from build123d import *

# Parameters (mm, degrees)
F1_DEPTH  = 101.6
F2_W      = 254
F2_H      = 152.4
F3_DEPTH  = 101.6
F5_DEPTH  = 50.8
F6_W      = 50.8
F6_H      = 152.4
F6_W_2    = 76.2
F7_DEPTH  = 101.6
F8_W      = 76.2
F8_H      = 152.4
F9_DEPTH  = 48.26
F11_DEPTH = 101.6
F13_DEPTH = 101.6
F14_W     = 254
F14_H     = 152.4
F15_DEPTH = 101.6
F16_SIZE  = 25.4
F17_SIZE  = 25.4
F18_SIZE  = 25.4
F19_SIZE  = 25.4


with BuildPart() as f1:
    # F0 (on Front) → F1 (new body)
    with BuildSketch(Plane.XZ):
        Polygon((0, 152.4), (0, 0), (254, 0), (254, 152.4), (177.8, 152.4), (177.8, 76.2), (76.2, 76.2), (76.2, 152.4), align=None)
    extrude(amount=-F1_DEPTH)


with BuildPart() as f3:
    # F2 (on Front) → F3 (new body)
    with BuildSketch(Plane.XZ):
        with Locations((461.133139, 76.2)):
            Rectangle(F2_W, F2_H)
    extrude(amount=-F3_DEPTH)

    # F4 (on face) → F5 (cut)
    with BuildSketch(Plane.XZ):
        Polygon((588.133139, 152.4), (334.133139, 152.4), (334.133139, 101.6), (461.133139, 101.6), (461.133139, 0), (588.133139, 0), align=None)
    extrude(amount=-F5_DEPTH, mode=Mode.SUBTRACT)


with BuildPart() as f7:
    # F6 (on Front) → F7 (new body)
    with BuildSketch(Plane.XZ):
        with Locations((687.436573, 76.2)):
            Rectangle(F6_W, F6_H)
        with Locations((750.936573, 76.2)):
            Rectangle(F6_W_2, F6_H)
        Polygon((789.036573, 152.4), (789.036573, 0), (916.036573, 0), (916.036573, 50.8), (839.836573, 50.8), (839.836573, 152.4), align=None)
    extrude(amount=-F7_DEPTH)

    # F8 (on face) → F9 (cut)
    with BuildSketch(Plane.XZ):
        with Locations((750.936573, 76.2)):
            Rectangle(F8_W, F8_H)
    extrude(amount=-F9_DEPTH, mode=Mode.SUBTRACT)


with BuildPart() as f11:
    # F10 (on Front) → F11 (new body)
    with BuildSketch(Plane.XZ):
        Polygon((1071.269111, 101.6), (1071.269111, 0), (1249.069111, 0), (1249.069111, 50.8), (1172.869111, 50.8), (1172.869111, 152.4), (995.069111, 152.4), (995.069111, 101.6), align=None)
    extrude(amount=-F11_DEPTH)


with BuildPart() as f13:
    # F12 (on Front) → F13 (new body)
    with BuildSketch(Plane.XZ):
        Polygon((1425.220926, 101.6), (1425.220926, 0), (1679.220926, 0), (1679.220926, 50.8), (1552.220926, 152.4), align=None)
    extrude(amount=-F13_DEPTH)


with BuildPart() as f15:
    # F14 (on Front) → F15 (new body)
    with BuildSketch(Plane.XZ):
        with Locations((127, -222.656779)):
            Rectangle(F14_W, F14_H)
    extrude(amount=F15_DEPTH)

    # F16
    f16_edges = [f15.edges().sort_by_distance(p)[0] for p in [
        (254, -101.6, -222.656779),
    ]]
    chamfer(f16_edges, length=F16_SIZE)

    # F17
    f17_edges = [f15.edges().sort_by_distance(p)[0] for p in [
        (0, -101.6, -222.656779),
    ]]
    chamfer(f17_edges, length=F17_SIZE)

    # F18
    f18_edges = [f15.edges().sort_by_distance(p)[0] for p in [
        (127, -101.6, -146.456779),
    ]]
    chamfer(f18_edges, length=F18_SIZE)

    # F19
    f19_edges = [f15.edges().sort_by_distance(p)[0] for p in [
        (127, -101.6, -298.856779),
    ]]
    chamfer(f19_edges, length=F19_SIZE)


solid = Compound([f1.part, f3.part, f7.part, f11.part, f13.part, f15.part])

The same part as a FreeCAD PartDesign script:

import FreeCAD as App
import Part
import Sketcher
Q = App.Units.Quantity


def edges_at(feature, points):
    """Names of the edges that pass closest to the given points."""
    edges = feature.Shape.Edges
    near = lambda p: min(range(len(edges)), key=lambda i: edges[i].distToShape(Part.Vertex(*p))[0])
    return sorted({f"Edge{near(p) + 1}" for p in points})


def add_polygon(sketch, points):
    """Adds a closed chain of lines whose ends are joined by coincident constraints."""
    first, n = sketch.GeometryCount, len(points)
    for a, b in zip(points, points[1:] + points[:1]):
        sketch.addGeometry(Part.LineSegment(App.Vector(*a, 0), App.Vector(*b, 0)), False)
    for i in range(n):
        sketch.addConstraint(Sketcher.Constraint("Coincident", first + i, 2, first + (i + 1) % n, 1))

doc = App.newDocument("Part")
params = doc.addObject("Spreadsheet::Sheet", "Params")
for row, (alias, value) in enumerate([
    ("sketch1_width", "10 in"),
    ("sketch1_width2", "3 in"),
    ("sketch1_height", "6 in"),
    ("pad1_length", "4 in"),
    ("sketch2_width", "10 in"),
    ("sketch2_height", "6 in"),
    ("pad2_length", "4 in"),
    ("sketch3_width", "10 in"),
    ("sketch3_height", "2 in"),
    ("sketch3_height2", "4 in"),
    ("pocket1_length", "2 in"),
    ("sketch4_width", "10 in"),
    ("sketch4_width2", "3 in"),
    ("sketch4_height", "6 in"),
    ("sketch4_height2", "2 in"),
    ("pad3_length", "4 in"),
    ("sketch5_width", "3 in"),
    ("sketch5_height", "6 in"),
    ("pocket2_length", "1.9 in"),
    ("sketch6_width", "7 in"),
    ("sketch6_width2", "3 in"),
    ("sketch6_height", "4 in"),
    ("sketch6_height2", "2 in"),
    ("pad4_length", "4 in"),
    ("sketch7_width", "10 in"),
    ("sketch7_height", "4 in"),
    ("sketch7_height2", "2 in"),
    ("pad5_length", "4 in"),
    ("sketch8_width", "10 in"),
    ("sketch8_height", "6 in"),
    ("pad6_length", "4 in"),
    ("chamfer_size", "1 in"),
    ("chamfer2_size", "1 in"),
    ("chamfer3_size", "1 in"),
    ("chamfer4_size", "1 in"),
], start=1):
    params.set(f"A{row}", alias)
    params.set(f"B{row}", "=" + value)
    params.setAlias(f"B{row}", alias)

body = doc.addObject("PartDesign::Body", "Body")

# Sketch on XZ plane
sketch1 = doc.addObject("Sketcher::SketchObject", "Sketch")
body.addObject(sketch1)
sketch1.AttachmentSupport = (doc.XZ_Plane, [""])
sketch1.MapMode = "FlatFace"
add_polygon(sketch1, [(0, 152.4), (0, 0), (254, 0), (254, 152.4), (177.8, 152.4), (177.8, 76.2), (76.2, 76.2), (76.2, 152.4)])  # lines 0-7
sketch1.addConstraint([
    Sketcher.Constraint("Vertical", 0),
    Sketcher.Constraint("Horizontal", 1),
    Sketcher.Constraint("Vertical", 2),
    Sketcher.Constraint("Horizontal", 3),
    Sketcher.Constraint("Vertical", 4),
    Sketcher.Constraint("Horizontal", 5),
    Sketcher.Constraint("Vertical", 6),
    Sketcher.Constraint("Horizontal", 7),
    Sketcher.Constraint("Coincident", 0, 2, -1, 1),
    Sketcher.Constraint("Horizontal", 3, 2, 6, 2),
    Sketcher.Constraint("Equal", 3, 7),
    Sketcher.Constraint("Equal", 7, 4),
    Sketcher.Constraint("DistanceX", 1, 1, 1, 2, Q("10 in")),
    Sketcher.Constraint("DistanceX", 3, 2, 3, 1, Q("3 in")),
    Sketcher.Constraint("DistanceY", 0, 2, 0, 1, Q("6 in")),
])
sketch1.setExpression("Constraints[20]", "Params.sketch1_width")
sketch1.setExpression("Constraints[21]", "Params.sketch1_width2")
sketch1.setExpression("Constraints[22]", "Params.sketch1_height")
pad1 = doc.addObject("PartDesign::Pad", "Pad")
body.addObject(pad1)
pad1.Profile = sketch1
pad1.setExpression("Length", "Params.pad1_length")
pad1.Reversed = True
body2 = doc.addObject("PartDesign::Body", "Body001")

# Sketch on XZ plane
sketch2 = doc.addObject("Sketcher::SketchObject", "Sketch001")
body2.addObject(sketch2)
sketch2.AttachmentSupport = (doc.getObject("XZ_Plane001"), [""])
sketch2.MapMode = "FlatFace"
add_polygon(sketch2, [(334.133139, 152.4), (334.133139, 0), (588.133139, 0), (588.133139, 152.4)])  # lines 0-3
sketch2.addConstraint([
    Sketcher.Constraint("Vertical", 0),
    Sketcher.Constraint("Horizontal", 1),
    Sketcher.Constraint("Vertical", 2),
    Sketcher.Constraint("Horizontal", 3),
    Sketcher.Constraint("PointOnObject", 0, 2, -1),
    Sketcher.Constraint("DistanceX", 1, 1, 1, 2, Q("10 in")),
    Sketcher.Constraint("DistanceY", 0, 2, 0, 1, Q("6 in")),
    Sketcher.Constraint("DistanceX", -1, 1, 0, 2, Q("334.133139 mm")),
])
sketch2.setExpression("Constraints[9]", "Params.sketch2_width")
sketch2.setExpression("Constraints[10]", "Params.sketch2_height")
pad2 = doc.addObject("PartDesign::Pad", "Pad001")
body2.addObject(pad2)
pad2.Profile = sketch2
pad2.setExpression("Length", "Params.pad2_length")
pad2.Reversed = True

# Sketch on XZ plane
sketch3 = doc.addObject("Sketcher::SketchObject", "Sketch002")
body2.addObject(sketch3)
sketch3.AttachmentSupport = (doc.getObject("XZ_Plane001"), [""])
sketch3.MapMode = "FlatFace"
add_polygon(sketch3, [(588.133139, 152.4), (334.133139, 152.4), (334.133139, 101.6), (461.133139, 101.6), (461.133139, 0), (588.133139, 0)])  # lines 0-5
sketch3.addConstraint([
    Sketcher.Constraint("Horizontal", 0),
    Sketcher.Constraint("Vertical", 1),
    Sketcher.Constraint("Horizontal", 2),
    Sketcher.Constraint("Vertical", 3),
    Sketcher.Constraint("Horizontal", 4),
    Sketcher.Constraint("Vertical", 5),
    Sketcher.Constraint("PointOnObject", 3, 2, -1),
    Sketcher.Constraint("Equal", 2, 4),
    Sketcher.Constraint("DistanceX", 0, 2, 0, 1, Q("10 in")),
    Sketcher.Constraint("DistanceY", 1, 2, 1, 1, Q("2 in")),
    Sketcher.Constraint("DistanceY", 3, 2, 3, 1, Q("4 in")),
    Sketcher.Constraint("DistanceX", -1, 1, 0, 2, Q("334.133139 mm")),
])
sketch3.setExpression("Constraints[14]", "Params.sketch3_width")
sketch3.setExpression("Constraints[15]", "Params.sketch3_height")
sketch3.setExpression("Constraints[16]", "Params.sketch3_height2")
pocket1 = doc.addObject("PartDesign::Pocket", "Pocket")
body2.addObject(pocket1)
pocket1.Profile = sketch3
pocket1.setExpression("Length", "Params.pocket1_length")
body3 = doc.addObject("PartDesign::Body", "Body002")

# Sketch on XZ plane
sketch4 = doc.addObject("Sketcher::SketchObject", "Sketch003")
body3.addObject(sketch4)
sketch4.AttachmentSupport = (doc.getObject("XZ_Plane002"), [""])
sketch4.MapMode = "FlatFace"
add_polygon(sketch4, [(662.036573, 152.4), (662.036573, 0), (916.036573, 0), (916.036573, 50.8), (839.836573, 50.8), (839.836573, 152.4)])  # lines 0-5
sketch4.addConstraint([
    Sketcher.Constraint("Vertical", 0),
    Sketcher.Constraint("Horizontal", 1),
    Sketcher.Constraint("Vertical", 2),
    Sketcher.Constraint("Horizontal", 3),
    Sketcher.Constraint("Vertical", 4),
    Sketcher.Constraint("Horizontal", 5),
    Sketcher.Constraint("PointOnObject", 0, 2, -1),
    Sketcher.Constraint("DistanceX", 1, 1, 1, 2, Q("10 in")),
    Sketcher.Constraint("DistanceX", 3, 2, 3, 1, Q("3 in")),
    Sketcher.Constraint("DistanceY", 0, 2, 0, 1, Q("6 in")),
    Sketcher.Constraint("DistanceY", 2, 1, 2, 2, Q("2 in")),
    Sketcher.Constraint("DistanceX", -1, 1, 0, 2, Q("662.036573 mm")),
])
sketch4.setExpression("Constraints[13]", "Params.sketch4_width")
sketch4.setExpression("Constraints[14]", "Params.sketch4_width2")
sketch4.setExpression("Constraints[15]", "Params.sketch4_height")
sketch4.setExpression("Constraints[16]", "Params.sketch4_height2")
pad3 = doc.addObject("PartDesign::Pad", "Pad002")
body3.addObject(pad3)
pad3.Profile = sketch4
pad3.setExpression("Length", "Params.pad3_length")
pad3.Reversed = True

# Sketch on XZ plane
sketch5 = doc.addObject("Sketcher::SketchObject", "Sketch004")
body3.addObject(sketch5)
sketch5.AttachmentSupport = (doc.getObject("XZ_Plane002"), [""])
sketch5.MapMode = "FlatFace"
add_polygon(sketch5, [(712.836573, 152.4), (712.836573, 0), (789.036573, 0), (789.036573, 152.4)])  # lines 0-3
sketch5.addConstraint([
    Sketcher.Constraint("Vertical", 0),
    Sketcher.Constraint("Horizontal", 1),
    Sketcher.Constraint("Vertical", 2),
    Sketcher.Constraint("Horizontal", 3),
    Sketcher.Constraint("PointOnObject", 0, 2, -1),
    Sketcher.Constraint("DistanceX", 1, 1, 1, 2, Q("3 in")),
    Sketcher.Constraint("DistanceY", 0, 2, 0, 1, Q("6 in")),
    Sketcher.Constraint("DistanceX", -1, 1, 0, 2, Q("712.836573 mm")),
])
sketch5.setExpression("Constraints[9]", "Params.sketch5_width")
sketch5.setExpression("Constraints[10]", "Params.sketch5_height")
pocket2 = doc.addObject("PartDesign::Pocket", "Pocket001")
body3.addObject(pocket2)
pocket2.Profile = sketch5
pocket2.setExpression("Length", "Params.pocket2_length")
body4 = doc.addObject("PartDesign::Body", "Body003")

# Sketch on XZ plane
sketch6 = doc.addObject("Sketcher::SketchObject", "Sketch005")
body4.addObject(sketch6)
sketch6.AttachmentSupport = (doc.getObject("XZ_Plane003"), [""])
sketch6.MapMode = "FlatFace"
add_polygon(sketch6, [(1071.269111, 101.6), (1071.269111, 0), (1249.069111, 0), (1249.069111, 50.8), (1172.869111, 50.8), (1172.869111, 152.4), (995.069111, 152.4), (995.069111, 101.6)])  # lines 0-7
sketch6.addConstraint([
    Sketcher.Constraint("Vertical", 0),
    Sketcher.Constraint("Horizontal", 1),
    Sketcher.Constraint("Vertical", 2),
    Sketcher.Constraint("Horizontal", 3),
    Sketcher.Constraint("Vertical", 4),
    Sketcher.Constraint("Horizontal", 5),
    Sketcher.Constraint("Vertical", 6),
    Sketcher.Constraint("Horizontal", 7),
    Sketcher.Constraint("PointOnObject", 0, 2, -1),
    Sketcher.Constraint("Equal", 1, 5),
    Sketcher.Constraint("Equal", 0, 4),
    Sketcher.Constraint("DistanceX", 1, 1, 1, 2, Q("7 in")),
    Sketcher.Constraint("DistanceX", 3, 2, 3, 1, Q("3 in")),
    Sketcher.Constraint("DistanceY", 0, 2, 0, 1, Q("4 in")),
    Sketcher.Constraint("DistanceY", 2, 1, 2, 2, Q("2 in")),
    Sketcher.Constraint("DistanceX", -1, 1, 0, 2, Q("1071.269111 mm")),
])
sketch6.setExpression("Constraints[19]", "Params.sketch6_width")
sketch6.setExpression("Constraints[20]", "Params.sketch6_width2")
sketch6.setExpression("Constraints[21]", "Params.sketch6_height")
sketch6.setExpression("Constraints[22]", "Params.sketch6_height2")
pad4 = doc.addObject("PartDesign::Pad", "Pad003")
body4.addObject(pad4)
pad4.Profile = sketch6
pad4.setExpression("Length", "Params.pad4_length")
pad4.Reversed = True
body5 = doc.addObject("PartDesign::Body", "Body004")

# Sketch on XZ plane
sketch7 = doc.addObject("Sketcher::SketchObject", "Sketch006")
body5.addObject(sketch7)
sketch7.AttachmentSupport = (doc.getObject("XZ_Plane004"), [""])
sketch7.MapMode = "FlatFace"
add_polygon(sketch7, [(1425.220926, 101.6), (1425.220926, 0), (1679.220926, 0), (1679.220926, 50.8), (1552.220926, 152.4)])  # lines 0-4
sketch7.addConstraint([
    Sketcher.Constraint("Vertical", 0),
    Sketcher.Constraint("Horizontal", 1),
    Sketcher.Constraint("Vertical", 2),
    Sketcher.Constraint("PointOnObject", 0, 2, -1),
    Sketcher.Constraint("DistanceX", 1, 1, 1, 2, Q("10 in")),
    Sketcher.Constraint("DistanceY", 0, 2, 0, 1, Q("4 in")),
    Sketcher.Constraint("DistanceY", 2, 1, 2, 2, Q("2 in")),
    Sketcher.Constraint("DistanceY", -1, 1, 3, 2, Q("6 in")),
    Sketcher.Constraint("DistanceX", 3, 2, 2, 2, Q("5 in")),
    Sketcher.Constraint("DistanceX", -1, 1, 0, 2, Q("1425.220926 mm")),
])
sketch7.setExpression("Constraints[9]", "Params.sketch7_width")
sketch7.setExpression("Constraints[10]", "Params.sketch7_height")
sketch7.setExpression("Constraints[11]", "Params.sketch7_height2")
pad5 = doc.addObject("PartDesign::Pad", "Pad004")
body5.addObject(pad5)
pad5.Profile = sketch7
pad5.setExpression("Length", "Params.pad5_length")
pad5.Reversed = True
body6 = doc.addObject("PartDesign::Body", "Body005")

# Sketch on XZ plane
sketch8 = doc.addObject("Sketcher::SketchObject", "Sketch007")
body6.addObject(sketch8)
sketch8.AttachmentSupport = (doc.getObject("XZ_Plane005"), [""])
sketch8.MapMode = "FlatFace"
add_polygon(sketch8, [(0, -146.456779), (0, -298.856779), (254, -298.856779), (254, -146.456779)])  # lines 0-3
sketch8.addConstraint([
    Sketcher.Constraint("Vertical", 0),
    Sketcher.Constraint("Horizontal", 1),
    Sketcher.Constraint("Vertical", 2),
    Sketcher.Constraint("Horizontal", 3),
    Sketcher.Constraint("PointOnObject", 0, 2, -2),
    Sketcher.Constraint("DistanceX", 1, 1, 1, 2, Q("10 in")),
    Sketcher.Constraint("DistanceY", 0, 2, 0, 1, Q("6 in")),
    Sketcher.Constraint("DistanceY", 0, 2, -1, 1, Q("298.856779 mm")),
])
sketch8.setExpression("Constraints[9]", "Params.sketch8_width")
sketch8.setExpression("Constraints[10]", "Params.sketch8_height")
pad6 = doc.addObject("PartDesign::Pad", "Pad005")
body6.addObject(pad6)
pad6.Profile = sketch8
pad6.setExpression("Length", "Params.pad6_length")
doc.recompute()

chamfer = doc.addObject("PartDesign::Chamfer", "Chamfer")
body6.addObject(chamfer)
chamfer.Base = (pad6, edges_at(pad6, [(254, -101.6, -222.657)]))
chamfer.setExpression("Size", "Params.chamfer_size")
doc.recompute()

chamfer2 = doc.addObject("PartDesign::Chamfer", "Chamfer001")
body6.addObject(chamfer2)
chamfer2.Base = (chamfer, edges_at(chamfer, [(0, -101.6, -222.657)]))
chamfer2.setExpression("Size", "Params.chamfer2_size")
doc.recompute()

chamfer3 = doc.addObject("PartDesign::Chamfer", "Chamfer002")
body6.addObject(chamfer3)
chamfer3.Base = (chamfer2, edges_at(chamfer2, [(127, -101.6, -146.457)]))
chamfer3.setExpression("Size", "Params.chamfer3_size")
doc.recompute()

chamfer4 = doc.addObject("PartDesign::Chamfer", "Chamfer003")
body6.addObject(chamfer4)
chamfer4.Base = (chamfer3, edges_at(chamfer3, [(127, -101.6, -298.857)]))
chamfer4.setExpression("Size", "Params.chamfer4_size")

doc.recompute()
